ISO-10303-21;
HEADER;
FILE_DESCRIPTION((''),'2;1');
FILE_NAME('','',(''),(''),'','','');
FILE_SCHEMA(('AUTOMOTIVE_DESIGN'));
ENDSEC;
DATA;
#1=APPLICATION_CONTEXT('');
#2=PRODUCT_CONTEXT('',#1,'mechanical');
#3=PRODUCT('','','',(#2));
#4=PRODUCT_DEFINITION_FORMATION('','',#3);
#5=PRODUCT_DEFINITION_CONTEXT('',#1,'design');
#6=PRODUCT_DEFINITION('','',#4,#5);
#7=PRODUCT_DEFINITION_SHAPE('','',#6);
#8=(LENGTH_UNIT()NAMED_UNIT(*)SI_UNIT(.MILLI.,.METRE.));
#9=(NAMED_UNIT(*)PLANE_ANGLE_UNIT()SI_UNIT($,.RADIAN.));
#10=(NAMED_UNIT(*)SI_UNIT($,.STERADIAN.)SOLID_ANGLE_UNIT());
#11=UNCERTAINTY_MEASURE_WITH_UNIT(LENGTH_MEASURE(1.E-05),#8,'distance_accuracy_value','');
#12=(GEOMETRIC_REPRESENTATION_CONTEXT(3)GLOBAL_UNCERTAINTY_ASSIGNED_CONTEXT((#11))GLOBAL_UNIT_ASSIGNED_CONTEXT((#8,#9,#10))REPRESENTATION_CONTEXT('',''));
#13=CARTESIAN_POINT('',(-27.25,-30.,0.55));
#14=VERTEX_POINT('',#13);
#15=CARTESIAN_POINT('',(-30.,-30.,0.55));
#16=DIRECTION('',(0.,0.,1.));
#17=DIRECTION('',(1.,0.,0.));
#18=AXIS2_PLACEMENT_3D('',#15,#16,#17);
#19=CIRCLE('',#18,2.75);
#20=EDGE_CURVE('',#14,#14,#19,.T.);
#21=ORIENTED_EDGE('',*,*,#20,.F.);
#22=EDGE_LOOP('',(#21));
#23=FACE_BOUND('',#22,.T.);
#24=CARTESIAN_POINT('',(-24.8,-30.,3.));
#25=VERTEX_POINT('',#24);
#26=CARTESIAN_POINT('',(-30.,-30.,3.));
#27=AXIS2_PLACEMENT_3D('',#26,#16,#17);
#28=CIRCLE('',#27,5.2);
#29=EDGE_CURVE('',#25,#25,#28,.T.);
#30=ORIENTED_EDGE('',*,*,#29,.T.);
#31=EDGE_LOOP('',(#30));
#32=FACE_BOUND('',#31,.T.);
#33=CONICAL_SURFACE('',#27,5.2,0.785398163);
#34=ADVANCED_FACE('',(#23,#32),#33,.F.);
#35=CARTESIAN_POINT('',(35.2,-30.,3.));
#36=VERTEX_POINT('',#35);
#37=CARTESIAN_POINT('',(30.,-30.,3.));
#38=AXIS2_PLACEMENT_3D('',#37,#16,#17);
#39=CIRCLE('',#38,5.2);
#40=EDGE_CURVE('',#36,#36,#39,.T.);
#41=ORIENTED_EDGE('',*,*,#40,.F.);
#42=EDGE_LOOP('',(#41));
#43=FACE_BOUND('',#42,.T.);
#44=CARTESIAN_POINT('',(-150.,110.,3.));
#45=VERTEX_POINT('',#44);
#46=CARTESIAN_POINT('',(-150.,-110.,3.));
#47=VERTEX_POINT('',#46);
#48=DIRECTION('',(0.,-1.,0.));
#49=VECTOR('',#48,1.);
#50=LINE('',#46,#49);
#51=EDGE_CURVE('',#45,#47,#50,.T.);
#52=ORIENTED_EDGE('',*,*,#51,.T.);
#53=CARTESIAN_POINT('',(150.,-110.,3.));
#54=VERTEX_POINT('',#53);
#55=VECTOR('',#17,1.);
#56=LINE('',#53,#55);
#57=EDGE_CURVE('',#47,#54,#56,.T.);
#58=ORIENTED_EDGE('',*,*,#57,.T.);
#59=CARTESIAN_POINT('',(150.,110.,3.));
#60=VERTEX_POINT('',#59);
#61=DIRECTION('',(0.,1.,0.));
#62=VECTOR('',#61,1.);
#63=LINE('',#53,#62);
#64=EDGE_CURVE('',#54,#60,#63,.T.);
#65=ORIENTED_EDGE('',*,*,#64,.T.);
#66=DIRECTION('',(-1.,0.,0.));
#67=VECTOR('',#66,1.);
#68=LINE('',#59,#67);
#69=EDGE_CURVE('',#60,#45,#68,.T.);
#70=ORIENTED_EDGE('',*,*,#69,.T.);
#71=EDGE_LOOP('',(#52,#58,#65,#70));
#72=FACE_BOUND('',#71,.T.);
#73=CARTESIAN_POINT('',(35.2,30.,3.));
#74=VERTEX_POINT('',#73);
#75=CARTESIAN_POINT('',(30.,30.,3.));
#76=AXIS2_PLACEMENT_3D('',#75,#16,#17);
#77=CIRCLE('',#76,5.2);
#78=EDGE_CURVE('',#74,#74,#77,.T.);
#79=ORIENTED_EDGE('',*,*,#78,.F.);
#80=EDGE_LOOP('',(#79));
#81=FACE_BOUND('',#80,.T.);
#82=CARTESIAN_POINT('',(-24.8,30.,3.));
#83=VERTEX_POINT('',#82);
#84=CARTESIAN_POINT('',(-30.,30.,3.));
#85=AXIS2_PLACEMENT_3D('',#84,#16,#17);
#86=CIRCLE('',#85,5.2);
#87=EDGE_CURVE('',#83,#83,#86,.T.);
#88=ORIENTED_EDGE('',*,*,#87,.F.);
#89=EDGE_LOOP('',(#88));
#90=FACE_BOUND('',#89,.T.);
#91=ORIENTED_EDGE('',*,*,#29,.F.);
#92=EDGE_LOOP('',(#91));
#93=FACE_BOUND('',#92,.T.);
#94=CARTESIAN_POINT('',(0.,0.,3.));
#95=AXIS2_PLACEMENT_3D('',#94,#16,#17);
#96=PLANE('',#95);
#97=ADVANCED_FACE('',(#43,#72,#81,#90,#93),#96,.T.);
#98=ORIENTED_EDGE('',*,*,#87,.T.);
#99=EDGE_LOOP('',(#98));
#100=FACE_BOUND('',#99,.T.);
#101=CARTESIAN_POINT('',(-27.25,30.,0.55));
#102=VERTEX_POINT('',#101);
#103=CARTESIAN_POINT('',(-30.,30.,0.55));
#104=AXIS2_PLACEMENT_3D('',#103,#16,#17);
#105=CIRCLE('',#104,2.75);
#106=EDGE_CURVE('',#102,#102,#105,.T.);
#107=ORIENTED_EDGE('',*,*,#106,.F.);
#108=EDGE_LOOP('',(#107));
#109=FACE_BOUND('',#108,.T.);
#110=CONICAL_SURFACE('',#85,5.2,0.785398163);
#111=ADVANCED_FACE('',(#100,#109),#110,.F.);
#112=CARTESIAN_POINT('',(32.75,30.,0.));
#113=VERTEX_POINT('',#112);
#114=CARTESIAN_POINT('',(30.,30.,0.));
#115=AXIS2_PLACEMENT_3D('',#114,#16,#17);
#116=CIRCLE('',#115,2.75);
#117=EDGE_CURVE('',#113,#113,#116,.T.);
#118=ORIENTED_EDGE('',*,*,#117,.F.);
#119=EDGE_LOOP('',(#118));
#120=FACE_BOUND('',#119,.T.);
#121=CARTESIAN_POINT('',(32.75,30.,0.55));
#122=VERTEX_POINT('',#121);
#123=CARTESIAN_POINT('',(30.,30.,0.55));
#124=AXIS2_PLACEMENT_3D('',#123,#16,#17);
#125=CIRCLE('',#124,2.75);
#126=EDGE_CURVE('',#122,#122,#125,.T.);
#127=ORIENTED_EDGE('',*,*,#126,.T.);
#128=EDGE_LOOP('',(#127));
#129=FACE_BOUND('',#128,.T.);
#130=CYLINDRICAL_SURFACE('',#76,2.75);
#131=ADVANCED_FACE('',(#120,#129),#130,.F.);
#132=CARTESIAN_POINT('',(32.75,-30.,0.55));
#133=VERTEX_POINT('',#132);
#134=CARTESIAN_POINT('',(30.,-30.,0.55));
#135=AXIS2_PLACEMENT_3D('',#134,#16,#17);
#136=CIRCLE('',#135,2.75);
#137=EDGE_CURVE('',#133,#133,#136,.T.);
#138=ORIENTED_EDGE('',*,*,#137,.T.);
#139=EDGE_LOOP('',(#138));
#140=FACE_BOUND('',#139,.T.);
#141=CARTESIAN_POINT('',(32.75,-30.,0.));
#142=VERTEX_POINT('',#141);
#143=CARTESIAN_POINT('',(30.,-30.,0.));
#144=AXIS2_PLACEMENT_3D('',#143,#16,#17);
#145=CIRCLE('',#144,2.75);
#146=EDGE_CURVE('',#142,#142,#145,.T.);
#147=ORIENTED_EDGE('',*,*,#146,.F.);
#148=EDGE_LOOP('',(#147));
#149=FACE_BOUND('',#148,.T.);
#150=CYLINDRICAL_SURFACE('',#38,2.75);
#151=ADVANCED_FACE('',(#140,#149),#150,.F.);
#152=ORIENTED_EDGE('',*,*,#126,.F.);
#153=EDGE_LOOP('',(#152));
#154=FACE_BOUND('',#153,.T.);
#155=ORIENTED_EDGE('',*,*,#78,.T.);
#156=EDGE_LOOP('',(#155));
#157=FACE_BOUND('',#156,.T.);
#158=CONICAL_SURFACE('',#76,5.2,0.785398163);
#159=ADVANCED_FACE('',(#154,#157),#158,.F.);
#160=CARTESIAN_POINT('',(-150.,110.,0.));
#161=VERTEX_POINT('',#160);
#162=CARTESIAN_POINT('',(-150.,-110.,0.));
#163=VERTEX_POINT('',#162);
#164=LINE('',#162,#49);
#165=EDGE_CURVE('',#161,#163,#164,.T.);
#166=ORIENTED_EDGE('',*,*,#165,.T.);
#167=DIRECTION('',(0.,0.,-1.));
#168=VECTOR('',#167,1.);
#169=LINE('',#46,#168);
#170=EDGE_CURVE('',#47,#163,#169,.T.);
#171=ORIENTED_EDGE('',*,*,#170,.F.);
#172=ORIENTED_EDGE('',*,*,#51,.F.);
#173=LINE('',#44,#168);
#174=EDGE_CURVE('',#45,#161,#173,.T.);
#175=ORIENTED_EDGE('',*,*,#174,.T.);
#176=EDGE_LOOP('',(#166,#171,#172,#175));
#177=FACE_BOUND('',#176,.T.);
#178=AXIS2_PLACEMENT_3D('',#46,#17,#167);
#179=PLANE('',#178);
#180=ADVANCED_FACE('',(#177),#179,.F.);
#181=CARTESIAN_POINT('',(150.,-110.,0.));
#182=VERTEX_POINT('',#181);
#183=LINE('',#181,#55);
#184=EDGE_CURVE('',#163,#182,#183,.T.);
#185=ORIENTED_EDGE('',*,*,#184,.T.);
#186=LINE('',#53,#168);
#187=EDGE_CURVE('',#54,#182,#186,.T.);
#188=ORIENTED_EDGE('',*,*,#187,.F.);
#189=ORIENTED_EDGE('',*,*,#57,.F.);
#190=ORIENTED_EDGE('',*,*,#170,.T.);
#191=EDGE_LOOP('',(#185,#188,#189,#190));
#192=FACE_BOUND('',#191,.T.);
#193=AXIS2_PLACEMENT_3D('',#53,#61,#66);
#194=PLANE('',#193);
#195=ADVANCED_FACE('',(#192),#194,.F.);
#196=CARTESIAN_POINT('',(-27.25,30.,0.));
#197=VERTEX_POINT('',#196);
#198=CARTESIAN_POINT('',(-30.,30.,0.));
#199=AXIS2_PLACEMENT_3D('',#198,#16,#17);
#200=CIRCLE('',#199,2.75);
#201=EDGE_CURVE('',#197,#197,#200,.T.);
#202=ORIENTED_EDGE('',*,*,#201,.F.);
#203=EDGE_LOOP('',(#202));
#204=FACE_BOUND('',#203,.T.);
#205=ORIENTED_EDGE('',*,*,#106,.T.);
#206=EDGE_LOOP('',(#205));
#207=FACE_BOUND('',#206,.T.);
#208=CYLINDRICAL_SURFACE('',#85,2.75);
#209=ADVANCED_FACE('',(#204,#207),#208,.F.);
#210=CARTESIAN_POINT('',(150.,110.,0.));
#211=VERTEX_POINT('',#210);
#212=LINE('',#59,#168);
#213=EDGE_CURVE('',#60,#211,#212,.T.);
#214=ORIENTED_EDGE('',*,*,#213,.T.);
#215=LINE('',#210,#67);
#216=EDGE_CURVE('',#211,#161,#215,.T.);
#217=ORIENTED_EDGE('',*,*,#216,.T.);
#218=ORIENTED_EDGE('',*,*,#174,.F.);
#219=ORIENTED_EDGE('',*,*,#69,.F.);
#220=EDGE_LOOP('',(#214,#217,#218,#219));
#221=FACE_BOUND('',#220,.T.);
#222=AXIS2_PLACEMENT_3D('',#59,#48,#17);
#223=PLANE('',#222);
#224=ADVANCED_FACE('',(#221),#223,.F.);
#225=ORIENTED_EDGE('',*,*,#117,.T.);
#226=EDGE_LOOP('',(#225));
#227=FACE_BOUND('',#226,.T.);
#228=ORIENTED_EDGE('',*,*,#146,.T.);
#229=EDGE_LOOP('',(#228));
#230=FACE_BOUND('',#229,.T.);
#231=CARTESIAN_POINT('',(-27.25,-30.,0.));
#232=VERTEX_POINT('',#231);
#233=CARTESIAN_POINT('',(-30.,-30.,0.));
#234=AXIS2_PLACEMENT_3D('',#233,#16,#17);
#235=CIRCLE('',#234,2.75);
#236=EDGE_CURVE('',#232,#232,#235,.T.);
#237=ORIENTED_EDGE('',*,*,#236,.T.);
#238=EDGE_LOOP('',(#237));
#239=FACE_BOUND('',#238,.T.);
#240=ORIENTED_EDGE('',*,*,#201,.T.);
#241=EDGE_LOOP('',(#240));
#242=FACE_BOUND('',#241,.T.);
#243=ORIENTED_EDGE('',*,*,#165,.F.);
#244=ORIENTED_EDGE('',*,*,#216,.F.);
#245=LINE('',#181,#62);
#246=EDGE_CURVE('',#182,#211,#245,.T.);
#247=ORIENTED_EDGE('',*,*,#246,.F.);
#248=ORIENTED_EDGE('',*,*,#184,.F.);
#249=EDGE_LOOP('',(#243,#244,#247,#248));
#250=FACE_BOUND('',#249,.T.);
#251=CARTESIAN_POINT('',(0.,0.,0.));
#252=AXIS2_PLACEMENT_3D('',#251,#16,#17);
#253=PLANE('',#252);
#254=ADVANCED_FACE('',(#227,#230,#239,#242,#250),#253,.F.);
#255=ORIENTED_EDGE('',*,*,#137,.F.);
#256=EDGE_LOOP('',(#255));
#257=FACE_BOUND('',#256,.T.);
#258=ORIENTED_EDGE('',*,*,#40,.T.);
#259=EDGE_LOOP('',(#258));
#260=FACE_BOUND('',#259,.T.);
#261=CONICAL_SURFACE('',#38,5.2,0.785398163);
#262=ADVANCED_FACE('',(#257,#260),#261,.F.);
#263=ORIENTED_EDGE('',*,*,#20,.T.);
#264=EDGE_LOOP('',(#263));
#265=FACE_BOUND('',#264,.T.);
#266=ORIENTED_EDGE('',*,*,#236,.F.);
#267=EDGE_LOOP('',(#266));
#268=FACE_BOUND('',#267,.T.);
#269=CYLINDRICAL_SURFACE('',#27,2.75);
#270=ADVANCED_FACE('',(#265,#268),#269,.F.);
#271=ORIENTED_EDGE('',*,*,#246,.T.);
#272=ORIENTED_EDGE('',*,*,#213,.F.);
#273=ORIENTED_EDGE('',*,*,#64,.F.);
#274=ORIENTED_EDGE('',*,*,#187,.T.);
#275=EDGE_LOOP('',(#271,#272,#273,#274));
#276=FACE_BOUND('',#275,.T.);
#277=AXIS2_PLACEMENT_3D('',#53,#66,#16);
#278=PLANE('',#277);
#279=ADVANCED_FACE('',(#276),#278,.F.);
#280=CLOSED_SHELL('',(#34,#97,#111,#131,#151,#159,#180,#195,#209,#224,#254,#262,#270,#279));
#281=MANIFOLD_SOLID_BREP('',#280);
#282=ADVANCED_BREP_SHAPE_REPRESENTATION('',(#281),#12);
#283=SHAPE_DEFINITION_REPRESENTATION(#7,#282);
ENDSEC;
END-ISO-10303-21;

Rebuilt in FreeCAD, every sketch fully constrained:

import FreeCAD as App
import Part
import Sketcher
Q = App.Units.Quantity


def add_polygon(sketch, points):
    """Adds a closed chain of lines whose ends are joined by coincident constraints."""
    first, n = sketch.GeometryCount, len(points)
    for a, b in zip(points, points[1:] + points[:1]):
        sketch.addGeometry(Part.LineSegment(App.Vector(*a, 0), App.Vector(*b, 0)), False)
    for i in range(n):
        sketch.addConstraint(Sketcher.Constraint("Coincident", first + i, 2, first + (i + 1) % n, 1))

doc = App.newDocument("Part")
body = doc.addObject("PartDesign::Body", "Body")

# Sketch on XY plane
sketch1 = body.newObject("Sketcher::SketchObject", "Sketch")
sketch1.AttachmentSupport = (doc.getObject("XY_Plane"), [""])
sketch1.MapMode = "FlatFace"
add_polygon(sketch1, [(-150, 110), (-150, -110), (150, -110), (150, 110)])  # lines 0-3
sketch1.addConstraint([
    Sketcher.Constraint("Vertical", 0),
    Sketcher.Constraint("Horizontal", 1),
    Sketcher.Constraint("Vertical", 2),
    Sketcher.Constraint("Horizontal", 3),
    Sketcher.Constraint("Symmetric", 0, 2, 2, 2, -1, 1),
    Sketcher.Constraint("DistanceX", 1, 1, 1, 2, Q("300 mm")),
    Sketcher.Constraint("DistanceY", 0, 2, 0, 1, Q("220 mm")),
])
pad1 = body.newObject("PartDesign::Pad", "Pad")
pad1.Profile = sketch1
pad1.Length = 3

# Sketch on YZ plane
sketch2 = body.newObject("Sketcher::SketchObject", "Sketch001")
sketch2.AttachmentSupport = (doc.getObject("YZ_Plane"), [""])
sketch2.MapMode = "FlatFace"
sketch2.AttachmentOffset = App.Placement(App.Vector(0, 0, -30), App.Rotation())
add_polygon(sketch2, [(30, 0), (30, 3), (24.8, 3), (27.25, 0.55), (27.25, 0)])  # lines 0-4
sketch2.addGeometry(Part.LineSegment(App.Vector(30, 3, 0), App.Vector(30, 0, 0)), True)  # axis
sketch2.addConstraint([
    Sketcher.Constraint("Vertical", 0),
    Sketcher.Constraint("Horizontal", 1),
    Sketcher.Constraint("Vertical", 3),
    Sketcher.Constraint("Horizontal", 4),
    Sketcher.Constraint("Vertical", 5),
    Sketcher.Constraint("Coincident", 5, 1, 0, 2),
    Sketcher.Constraint("PointOnObject", 3, 2, -1),
    Sketcher.Constraint("PointOnObject", 5, 2, -1),
    Sketcher.Constraint("DistanceY", 0, 1, 0, 2, Q("3 mm")),
    Sketcher.Constraint("Angle", 2, Q("-45 deg")),
    Sketcher.Constraint("DistanceX", 1, 2, 1, 1, Q("5.2 mm")),
    Sketcher.Constraint("DistanceX", -1, 1, 0, 2, Q("30 mm")),
    Sketcher.Constraint("DistanceX", 4, 1, 4, 2, Q("2.75 mm")),
])
groove = body.newObject("PartDesign::Groove", "Groove")
groove.Profile = sketch2
groove.ReferenceAxis = (sketch2, ["Axis0"])
groove.Angle = 360
doc.recompute()

linearpattern = body.newObject("PartDesign::LinearPattern", "LinearPattern")
linearpattern.Originals = [groove]
linearpattern.Direction = (doc.getObject("X_Axis"), [""])
linearpattern.Mode = "offset"
linearpattern.Offset = 60
linearpattern.Occurrences = 2
body.Tip = linearpattern
doc.recompute()

linearpattern2 = body.newObject("PartDesign::LinearPattern", "LinearPattern001")
linearpattern2.Originals = [groove]
linearpattern2.Direction = (doc.getObject("Y_Axis"), [""])
linearpattern2.Mode = "offset"
linearpattern2.Offset = 60
linearpattern2.Occurrences = 2
linearpattern2.Reversed = True
body.Tip = linearpattern2
doc.recompute()

datumline = body.newObject("PartDesign::Line", "DatumLine")
datumline.Placement = App.Placement(App.Vector(0, 0, 0), App.Rotation(App.Vector(0, 0, 1), App.Vector(0.707106781, -0.707106781, 0)))
linearpattern3 = body.newObject("PartDesign::LinearPattern", "LinearPattern002")
linearpattern3.Originals = [groove]
linearpattern3.Direction = (datumline, [""])
linearpattern3.Mode = "offset"
linearpattern3.Offset = 84.852814
linearpattern3.Occurrences = 2
body.Tip = linearpattern3

doc.recompute()
